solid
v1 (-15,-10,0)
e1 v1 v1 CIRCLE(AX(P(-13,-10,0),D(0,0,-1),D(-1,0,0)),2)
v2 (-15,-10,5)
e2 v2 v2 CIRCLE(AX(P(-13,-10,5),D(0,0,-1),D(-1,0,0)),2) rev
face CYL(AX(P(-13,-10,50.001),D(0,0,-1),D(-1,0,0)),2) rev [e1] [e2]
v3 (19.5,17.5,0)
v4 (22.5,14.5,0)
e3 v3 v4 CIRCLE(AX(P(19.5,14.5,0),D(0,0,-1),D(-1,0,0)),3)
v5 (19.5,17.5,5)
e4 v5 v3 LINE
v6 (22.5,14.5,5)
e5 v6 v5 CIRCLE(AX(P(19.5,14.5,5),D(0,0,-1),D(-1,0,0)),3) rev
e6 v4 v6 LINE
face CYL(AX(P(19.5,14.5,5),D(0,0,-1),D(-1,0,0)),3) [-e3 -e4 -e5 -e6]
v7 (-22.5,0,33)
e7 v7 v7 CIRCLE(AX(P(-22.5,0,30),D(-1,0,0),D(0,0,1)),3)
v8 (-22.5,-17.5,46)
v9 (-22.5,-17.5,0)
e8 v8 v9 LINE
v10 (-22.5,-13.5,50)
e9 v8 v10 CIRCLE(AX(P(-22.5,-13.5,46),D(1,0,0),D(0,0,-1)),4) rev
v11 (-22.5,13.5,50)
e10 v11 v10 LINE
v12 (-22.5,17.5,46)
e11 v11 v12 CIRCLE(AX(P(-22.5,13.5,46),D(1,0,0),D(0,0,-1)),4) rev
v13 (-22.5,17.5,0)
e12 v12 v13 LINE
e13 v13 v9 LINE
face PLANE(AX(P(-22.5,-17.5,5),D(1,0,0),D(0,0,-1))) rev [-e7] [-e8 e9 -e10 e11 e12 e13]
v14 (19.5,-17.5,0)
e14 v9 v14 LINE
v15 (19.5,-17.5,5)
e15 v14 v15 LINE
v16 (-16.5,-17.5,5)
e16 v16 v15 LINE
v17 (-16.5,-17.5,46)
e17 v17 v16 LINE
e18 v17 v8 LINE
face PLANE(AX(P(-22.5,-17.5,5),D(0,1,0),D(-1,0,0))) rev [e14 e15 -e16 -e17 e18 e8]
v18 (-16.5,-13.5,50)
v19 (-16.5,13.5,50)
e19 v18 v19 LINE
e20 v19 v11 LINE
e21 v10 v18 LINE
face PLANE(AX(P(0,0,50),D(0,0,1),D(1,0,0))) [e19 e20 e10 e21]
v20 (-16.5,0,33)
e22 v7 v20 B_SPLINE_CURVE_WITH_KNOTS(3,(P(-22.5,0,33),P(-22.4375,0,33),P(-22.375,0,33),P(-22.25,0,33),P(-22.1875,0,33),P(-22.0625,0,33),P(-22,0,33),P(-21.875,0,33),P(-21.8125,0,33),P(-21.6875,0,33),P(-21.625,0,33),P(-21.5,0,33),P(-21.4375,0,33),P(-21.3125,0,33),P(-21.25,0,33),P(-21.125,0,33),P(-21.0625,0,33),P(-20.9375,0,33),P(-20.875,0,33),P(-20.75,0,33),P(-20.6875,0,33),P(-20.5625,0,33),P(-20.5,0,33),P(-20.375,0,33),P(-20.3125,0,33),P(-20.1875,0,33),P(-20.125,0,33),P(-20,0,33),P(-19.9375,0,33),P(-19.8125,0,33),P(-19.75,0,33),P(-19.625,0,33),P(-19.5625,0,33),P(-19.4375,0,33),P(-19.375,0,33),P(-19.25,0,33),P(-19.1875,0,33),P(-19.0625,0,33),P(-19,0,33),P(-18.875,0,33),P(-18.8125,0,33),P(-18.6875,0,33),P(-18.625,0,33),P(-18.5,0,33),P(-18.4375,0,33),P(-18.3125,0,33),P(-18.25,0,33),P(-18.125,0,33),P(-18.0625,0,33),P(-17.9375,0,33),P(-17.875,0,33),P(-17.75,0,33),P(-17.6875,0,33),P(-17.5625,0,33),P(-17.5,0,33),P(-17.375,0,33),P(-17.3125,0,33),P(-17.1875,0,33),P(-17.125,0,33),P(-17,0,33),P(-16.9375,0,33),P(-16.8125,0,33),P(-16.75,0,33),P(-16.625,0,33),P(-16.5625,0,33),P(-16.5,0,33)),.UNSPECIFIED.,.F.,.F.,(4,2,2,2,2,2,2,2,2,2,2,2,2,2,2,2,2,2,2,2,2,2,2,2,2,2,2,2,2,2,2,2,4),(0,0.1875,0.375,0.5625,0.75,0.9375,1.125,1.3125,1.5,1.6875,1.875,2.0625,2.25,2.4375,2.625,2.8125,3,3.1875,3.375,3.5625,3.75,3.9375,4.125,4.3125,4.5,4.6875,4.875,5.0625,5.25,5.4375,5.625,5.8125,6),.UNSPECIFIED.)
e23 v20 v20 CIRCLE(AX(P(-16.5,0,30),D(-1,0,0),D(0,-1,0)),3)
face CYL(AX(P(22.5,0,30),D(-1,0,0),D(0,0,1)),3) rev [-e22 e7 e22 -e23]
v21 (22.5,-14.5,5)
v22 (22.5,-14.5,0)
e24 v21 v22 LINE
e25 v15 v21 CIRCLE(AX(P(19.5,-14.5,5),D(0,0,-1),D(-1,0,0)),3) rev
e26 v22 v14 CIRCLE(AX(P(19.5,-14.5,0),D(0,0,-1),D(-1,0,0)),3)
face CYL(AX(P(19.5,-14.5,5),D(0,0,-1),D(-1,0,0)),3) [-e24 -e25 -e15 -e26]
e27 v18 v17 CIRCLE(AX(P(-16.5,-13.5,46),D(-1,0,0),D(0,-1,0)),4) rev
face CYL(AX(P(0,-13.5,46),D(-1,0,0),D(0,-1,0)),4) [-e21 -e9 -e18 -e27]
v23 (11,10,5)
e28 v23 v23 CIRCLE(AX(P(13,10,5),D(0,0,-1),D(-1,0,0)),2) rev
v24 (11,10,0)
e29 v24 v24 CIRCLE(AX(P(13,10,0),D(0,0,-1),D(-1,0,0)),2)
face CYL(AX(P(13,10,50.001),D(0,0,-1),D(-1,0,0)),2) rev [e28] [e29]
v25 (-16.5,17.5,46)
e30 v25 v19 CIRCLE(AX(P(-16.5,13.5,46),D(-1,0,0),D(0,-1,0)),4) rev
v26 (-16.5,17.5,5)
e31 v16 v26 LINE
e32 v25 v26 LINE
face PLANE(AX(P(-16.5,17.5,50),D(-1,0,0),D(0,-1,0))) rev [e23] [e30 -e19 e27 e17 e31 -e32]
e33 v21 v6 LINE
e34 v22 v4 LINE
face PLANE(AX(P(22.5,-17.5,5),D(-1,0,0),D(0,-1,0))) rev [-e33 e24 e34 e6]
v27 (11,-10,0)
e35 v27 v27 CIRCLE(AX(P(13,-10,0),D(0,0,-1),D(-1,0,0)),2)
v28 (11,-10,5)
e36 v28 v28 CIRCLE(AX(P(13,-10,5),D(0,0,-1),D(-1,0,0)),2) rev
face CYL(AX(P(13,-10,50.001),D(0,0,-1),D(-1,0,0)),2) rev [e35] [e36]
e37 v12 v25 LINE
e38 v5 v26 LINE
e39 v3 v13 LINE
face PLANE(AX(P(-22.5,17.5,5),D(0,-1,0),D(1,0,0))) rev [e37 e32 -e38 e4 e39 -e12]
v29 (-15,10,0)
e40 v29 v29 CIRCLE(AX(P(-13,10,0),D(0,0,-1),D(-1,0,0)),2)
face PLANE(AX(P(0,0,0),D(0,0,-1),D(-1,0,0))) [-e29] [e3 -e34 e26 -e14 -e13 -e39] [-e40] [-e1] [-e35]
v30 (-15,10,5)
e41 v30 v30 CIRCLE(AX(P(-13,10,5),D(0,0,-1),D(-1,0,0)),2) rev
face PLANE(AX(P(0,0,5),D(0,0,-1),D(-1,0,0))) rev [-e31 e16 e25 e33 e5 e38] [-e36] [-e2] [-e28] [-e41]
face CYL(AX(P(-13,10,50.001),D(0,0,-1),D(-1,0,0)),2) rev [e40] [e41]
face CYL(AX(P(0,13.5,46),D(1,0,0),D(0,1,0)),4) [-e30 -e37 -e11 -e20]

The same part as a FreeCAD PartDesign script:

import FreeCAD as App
import Part
import Sketcher
from FreeCAD import Vector


def edges_at(feature, points):
    """Names of the edges that pass closest to the given points."""
    edges = feature.Shape.Edges
    near = lambda p: min(range(len(edges)), key=lambda i: edges[i].distToShape(Part.Vertex(*p))[0])
    return sorted({f"Edge{near(p) + 1}" for p in points})

doc = App.newDocument("Part")
body = doc.addObject("PartDesign::Body", "Body")

# Sketch on XY plane
sketch1 = body.newObject("Sketcher::SketchObject", "Sketch")
sketch1.AttachmentSupport = (doc.getObject("XY_Plane"), [""])
sketch1.MapMode = "FlatFace"
sketch1.addGeometry(Part.LineSegment(Vector(-22, 18, 0), Vector(-22, -18, 0)), False)
sketch1.addGeometry(Part.LineSegment(Vector(-22, -18, 0), Vector(22, -18, 0)), False)
sketch1.addGeometry(Part.LineSegment(Vector(22, -18, 0), Vector(22, 18, 0)), False)
sketch1.addGeometry(Part.LineSegment(Vector(22, 18, 0), Vector(-22, 18, 0)), False)
sketch1.addConstraint(Sketcher.Constraint("Coincident", 0, 2, 1, 1))
sketch1.addConstraint(Sketcher.Constraint("Coincident", 1, 2, 2, 1))
sketch1.addConstraint(Sketcher.Constraint("Coincident", 2, 2, 3, 1))
sketch1.addConstraint(Sketcher.Constraint("Coincident", 3, 2, 0, 1))
sketch1.addConstraint(Sketcher.Constraint("Vertical", 0))
sketch1.addConstraint(Sketcher.Constraint("Horizontal", 1))
sketch1.addConstraint(Sketcher.Constraint("Vertical", 2))
sketch1.addConstraint(Sketcher.Constraint("Horizontal", 3))
sketch1.addConstraint(Sketcher.Constraint("Symmetric", 0, 2, 2, 2, -1, 1))
sketch1.addConstraint(Sketcher.Constraint("DistanceX", 1, 1, 1, 2, 45.0))
sketch1.addConstraint(Sketcher.Constraint("DistanceY", 0, 2, 0, 1, 35.0))
pad1 = body.newObject("PartDesign::Pad", "Pad")
pad1.Profile = sketch1
pad1.Length = 5

# Sketch on XY plane
sketch2 = body.newObject("Sketcher::SketchObject", "Sketch001")
sketch2.AttachmentSupport = (doc.getObject("XY_Plane"), [""])
sketch2.MapMode = "FlatFace"
sketch2.AttachmentOffset = App.Placement(Vector(0, 0, 5), App.Rotation())
sketch2.addGeometry(Part.LineSegment(Vector(-22, 18, 0), Vector(-22, -18, 0)), False)
sketch2.addGeometry(Part.LineSegment(Vector(-22, -18, 0), Vector(-16, -18, 0)), False)
sketch2.addGeometry(Part.LineSegment(Vector(-16, -18, 0), Vector(-16, 18, 0)), False)
sketch2.addGeometry(Part.LineSegment(Vector(-16, 18, 0), Vector(-22, 18, 0)), False)
sketch2.addConstraint(Sketcher.Constraint("Coincident", 0, 2, 1, 1))
sketch2.addConstraint(Sketcher.Constraint("Coincident", 1, 2, 2, 1))
sketch2.addConstraint(Sketcher.Constraint("Coincident", 2, 2, 3, 1))
sketch2.addConstraint(Sketcher.Constraint("Coincident", 3, 2, 0, 1))
sketch2.addConstraint(Sketcher.Constraint("Vertical", 0))
sketch2.addConstraint(Sketcher.Constraint("Horizontal", 1))
sketch2.addConstraint(Sketcher.Constraint("Vertical", 2))
sketch2.addConstraint(Sketcher.Constraint("Horizontal", 3))
sketch2.addConstraint(Sketcher.Constraint("DistanceX", 1, 1, 1, 2, 6.0))
sketch2.addConstraint(Sketcher.Constraint("DistanceY", 0, 2, 0, 1, 35.0))
sketch2.addConstraint(Sketcher.Constraint("DistanceX", 0, 2, -1, 1, 22.5))
sketch2.addConstraint(Sketcher.Constraint("DistanceY", 0, 2, -1, 1, 17.5))
pad2 = body.newObject("PartDesign::Pad", "Pad001")
pad2.Profile = sketch2
pad2.Length = 45

# Sketch on YZ plane
sketch3 = body.newObject("Sketcher::SketchObject", "Sketch002")
sketch3.AttachmentSupport = (doc.getObject("YZ_Plane"), [""])
sketch3.MapMode = "FlatFace"
sketch3.AttachmentOffset = App.Placement(Vector(0, 0, -22.5), App.Rotation())
sketch3.addGeometry(Part.Circle(Vector(0, 30, 0), Vector(0, 0, 1), 3), False)
sketch3.addConstraint(Sketcher.Constraint("PointOnObject", 0, 3, -2))
sketch3.addConstraint(Sketcher.Constraint("Diameter", 0, 6.0))
sketch3.addConstraint(Sketcher.Constraint("DistanceY", -1, 1, 0, 3, 30.0))
pocket1 = body.newObject("PartDesign::Pocket", "Pocket")
pocket1.Profile = sketch3
pocket1.Type = "ThroughAll"
pocket1.Reversed = True
doc.recompute()

fillet = body.newObject("PartDesign::Fillet", "Fillet")
fillet.Base = (pocket1, edges_at(pocket1, [(22.5, -17.5, 2.5), (22.5, 17.5, 2.5)]))
fillet.Radius = 3
doc.recompute()

fillet2 = body.newObject("PartDesign::Fillet", "Fillet001")
fillet2.Base = (fillet, edges_at(fillet, [(-19.5, -17.5, 50), (-19.5, 17.5, 50)]))
fillet2.Radius = 4

# Sketch on XY plane
sketch4 = body.newObject("Sketcher::SketchObject", "Sketch003")
sketch4.AttachmentSupport = (doc.getObject("XY_Plane"), [""])
sketch4.MapMode = "FlatFace"
sketch4.addGeometry(Part.Circle(Vector(13, 10, 0), Vector(0, 0, 1), 2), False)
sketch4.addConstraint(Sketcher.Constraint("Diameter", 0, 4.0))
sketch4.addConstraint(Sketcher.Constraint("DistanceX", -1, 1, 0, 3, 13.0))
sketch4.addConstraint(Sketcher.Constraint("DistanceY", -1, 1, 0, 3, 10.0))
pocket2 = body.newObject("PartDesign::Pocket", "Pocket001")
pocket2.Profile = sketch4
pocket2.Type = "UpToFirst"
pocket2.Reversed = True

# Sketch on XY plane
sketch5 = body.newObject("Sketcher::SketchObject", "Sketch004")
sketch5.AttachmentSupport = (doc.getObject("XY_Plane"), [""])
sketch5.MapMode = "FlatFace"
sketch5.addGeometry(Part.Circle(Vector(-13, 10, 0), Vector(0, 0, 1), 2), False)
sketch5.addConstraint(Sketcher.Constraint("Diameter", 0, 4.0))
sketch5.addConstraint(Sketcher.Constraint("DistanceX", 0, 3, -1, 1, 13.0))
sketch5.addConstraint(Sketcher.Constraint("DistanceY", -1, 1, 0, 3, 10.0))
pocket3 = body.newObject("PartDesign::Pocket", "Pocket002")
pocket3.Profile = sketch5
pocket3.Type = "UpToFirst"
pocket3.Reversed = True

# Sketch on XY plane
sketch6 = body.newObject("Sketcher::SketchObject", "Sketch005")
sketch6.AttachmentSupport = (doc.getObject("XY_Plane"), [""])
sketch6.MapMode = "FlatFace"
sketch6.addGeometry(Part.Circle(Vector(-13, -10, 0), Vector(0, 0, 1), 2), False)
sketch6.addConstraint(Sketcher.Constraint("Diameter", 0, 4.0))
sketch6.addConstraint(Sketcher.Constraint("DistanceX", 0, 3, -1, 1, 13.0))
sketch6.addConstraint(Sketcher.Constraint("DistanceY", 0, 3, -1, 1, 10.0))
pocket4 = body.newObject("PartDesign::Pocket", "Pocket003")
pocket4.Profile = sketch6
pocket4.Type = "UpToFirst"
pocket4.Reversed = True

# Sketch on XY plane
sketch7 = body.newObject("Sketcher::SketchObject", "Sketch006")
sketch7.AttachmentSupport = (doc.getObject("XY_Plane"), [""])
sketch7.MapMode = "FlatFace"
sketch7.addGeometry(Part.Circle(Vector(13, -10, 0), Vector(0, 0, 1), 2), False)
sketch7.addConstraint(Sketcher.Constraint("Diameter", 0, 4.0))
sketch7.addConstraint(Sketcher.Constraint("DistanceX", -1, 1, 0, 3, 13.0))
sketch7.addConstraint(Sketcher.Constraint("DistanceY", 0, 3, -1, 1, 10.0))
pocket5 = body.newObject("PartDesign::Pocket", "Pocket004")
pocket5.Profile = sketch7
pocket5.Type = "UpToFirst"
pocket5.Reversed = True

doc.recompute()
